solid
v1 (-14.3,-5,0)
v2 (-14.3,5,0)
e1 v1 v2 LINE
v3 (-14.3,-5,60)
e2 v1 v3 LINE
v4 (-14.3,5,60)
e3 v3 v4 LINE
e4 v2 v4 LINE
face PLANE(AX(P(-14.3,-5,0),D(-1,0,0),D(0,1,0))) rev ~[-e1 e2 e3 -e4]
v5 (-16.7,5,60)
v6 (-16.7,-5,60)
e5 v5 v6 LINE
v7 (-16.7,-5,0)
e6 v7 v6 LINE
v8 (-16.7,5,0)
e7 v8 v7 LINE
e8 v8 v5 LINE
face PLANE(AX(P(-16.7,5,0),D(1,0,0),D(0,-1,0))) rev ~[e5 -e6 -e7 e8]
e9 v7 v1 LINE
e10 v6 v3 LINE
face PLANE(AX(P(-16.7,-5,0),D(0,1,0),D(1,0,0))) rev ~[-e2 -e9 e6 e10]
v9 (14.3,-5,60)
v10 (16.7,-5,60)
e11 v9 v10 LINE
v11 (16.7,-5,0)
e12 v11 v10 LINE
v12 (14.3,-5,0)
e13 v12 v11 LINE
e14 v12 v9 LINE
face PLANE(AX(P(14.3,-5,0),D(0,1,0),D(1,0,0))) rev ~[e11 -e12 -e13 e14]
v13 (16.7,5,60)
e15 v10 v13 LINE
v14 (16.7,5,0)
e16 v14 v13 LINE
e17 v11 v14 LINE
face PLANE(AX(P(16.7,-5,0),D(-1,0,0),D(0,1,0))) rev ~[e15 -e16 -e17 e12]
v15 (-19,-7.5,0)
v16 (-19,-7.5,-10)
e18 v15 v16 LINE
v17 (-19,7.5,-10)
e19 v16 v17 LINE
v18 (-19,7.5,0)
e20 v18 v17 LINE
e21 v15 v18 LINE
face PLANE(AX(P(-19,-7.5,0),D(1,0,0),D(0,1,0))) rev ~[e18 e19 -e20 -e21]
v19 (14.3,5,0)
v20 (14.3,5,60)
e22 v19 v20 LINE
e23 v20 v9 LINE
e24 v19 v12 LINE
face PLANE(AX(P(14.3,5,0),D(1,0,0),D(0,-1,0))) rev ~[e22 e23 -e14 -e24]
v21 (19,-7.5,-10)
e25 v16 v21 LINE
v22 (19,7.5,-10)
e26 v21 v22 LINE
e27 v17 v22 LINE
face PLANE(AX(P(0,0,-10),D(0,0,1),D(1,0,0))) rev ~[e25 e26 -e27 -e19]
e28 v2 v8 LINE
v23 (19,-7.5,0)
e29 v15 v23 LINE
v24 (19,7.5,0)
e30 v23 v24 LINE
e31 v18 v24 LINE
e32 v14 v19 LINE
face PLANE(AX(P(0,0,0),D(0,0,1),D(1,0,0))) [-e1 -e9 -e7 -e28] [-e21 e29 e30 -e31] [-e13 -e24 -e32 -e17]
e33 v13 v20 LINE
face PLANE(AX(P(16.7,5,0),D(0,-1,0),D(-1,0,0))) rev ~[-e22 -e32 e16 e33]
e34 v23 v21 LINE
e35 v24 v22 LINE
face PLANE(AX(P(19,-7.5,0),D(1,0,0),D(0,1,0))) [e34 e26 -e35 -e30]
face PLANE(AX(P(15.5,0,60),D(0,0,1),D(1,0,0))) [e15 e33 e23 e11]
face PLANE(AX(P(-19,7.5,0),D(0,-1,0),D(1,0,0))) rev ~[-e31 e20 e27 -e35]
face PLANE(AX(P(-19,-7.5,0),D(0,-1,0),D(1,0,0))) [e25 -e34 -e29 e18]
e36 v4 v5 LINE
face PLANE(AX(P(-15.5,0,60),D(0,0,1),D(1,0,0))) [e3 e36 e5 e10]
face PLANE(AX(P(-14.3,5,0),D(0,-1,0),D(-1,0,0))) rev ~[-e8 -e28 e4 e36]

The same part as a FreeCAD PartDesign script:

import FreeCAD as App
import Part
import Sketcher


def add_polygon(sketch, points):
    """Adds a closed chain of lines whose ends are joined by coincident constraints."""
    first, n = sketch.GeometryCount, len(points)
    for a, b in zip(points, points[1:] + points[:1]):
        sketch.addGeometry(Part.LineSegment(App.Vector(*a, 0), App.Vector(*b, 0)), False)
    for i in range(n):
        sketch.addConstraint(Sketcher.Constraint("Coincident", first + i, 2, first + (i + 1) % n, 1))

doc = App.newDocument("Part")
body = doc.addObject("PartDesign::Body", "Body")

# Sketch on XY plane
sketch1 = body.newObject("Sketcher::SketchObject", "Sketch")
sketch1.AttachmentSupport = (doc.getObject("XY_Plane"), [""])
sketch1.MapMode = "FlatFace"
add_polygon(sketch1, [(14.3, 5), (14.3, -5), (16.7, -5), (16.7, 5)])  # lines 0-3
sketch1.addConstraint([
    Sketcher.Constraint("Vertical", 0),
    Sketcher.Constraint("Horizontal", 1),
    Sketcher.Constraint("Vertical", 2),
    Sketcher.Constraint("Horizontal", 3),
    Sketcher.Constraint("DistanceY", 0, 2, 0, 1, 10.0),
    Sketcher.Constraint("DistanceX", 1, 1, 1, 2, 2.4),
    Sketcher.Constraint("DistanceY", 0, 2, -1, 1, 5.0),
    Sketcher.Constraint("DistanceX", -1, 1, 0, 2, 14.3),
])
pad1 = body.newObject("PartDesign::Pad", "Pad")
pad1.Profile = sketch1
pad1.Length = 60
body2 = doc.addObject("PartDesign::Body", "Body001")

# Sketch on XY plane
sketch2 = body2.newObject("Sketcher::SketchObject", "Sketch001")
sketch2.AttachmentSupport = (doc.getObject("XY_Plane001"), [""])
sketch2.MapMode = "FlatFace"
add_polygon(sketch2, [(-14.3, -5), (-14.3, 5), (-16.7, 5), (-16.7, -5)])  # lines 0-3
sketch2.addConstraint([
    Sketcher.Constraint("Vertical", 0),
    Sketcher.Constraint("Horizontal", 1),
    Sketcher.Constraint("Vertical", 2),
    Sketcher.Constraint("Horizontal", 3),
    Sketcher.Constraint("DistanceY", 0, 1, 0, 2, 10.0),
    Sketcher.Constraint("DistanceX", 1, 2, 1, 1, 2.4),
    Sketcher.Constraint("DistanceY", -1, 1, 0, 2, 5.0),
    Sketcher.Constraint("DistanceX", 0, 2, -1, 1, 14.3),
])
pad2 = body2.newObject("PartDesign::Pad", "Pad001")
pad2.Profile = sketch2
pad2.Length = 60
body.AllowCompound = True
doc.recompute()

boolean = body.newObject("PartDesign::Boolean", "Boolean")
boolean.Type = "Fuse"
boolean.addObjects([body2])

# Sketch on XY plane
sketch3 = body.newObject("Sketcher::SketchObject", "Sketch002")
sketch3.AttachmentSupport = (doc.getObject("XY_Plane"), [""])
sketch3.MapMode = "FlatFace"
add_polygon(sketch3, [(-19, 7.5), (-19, -7.5), (19, -7.5), (19, 7.5)])  # lines 0-3
sketch3.addConstraint([
    Sketcher.Constraint("Vertical", 0),
    Sketcher.Constraint("Horizontal", 1),
    Sketcher.Constraint("Vertical", 2),
    Sketcher.Constraint("Horizontal", 3),
    Sketcher.Constraint("Symmetric", 0, 2, 2, 2, -1, 1),
    Sketcher.Constraint("DistanceX", 1, 1, 1, 2, 38.0),
    Sketcher.Constraint("DistanceY", 0, 2, 0, 1, 15.0),
])
pad3 = body.newObject("PartDesign::Pad", "Pad002")
pad3.Profile = sketch3
pad3.Length = 10
pad3.Reversed = True

doc.recompute()
